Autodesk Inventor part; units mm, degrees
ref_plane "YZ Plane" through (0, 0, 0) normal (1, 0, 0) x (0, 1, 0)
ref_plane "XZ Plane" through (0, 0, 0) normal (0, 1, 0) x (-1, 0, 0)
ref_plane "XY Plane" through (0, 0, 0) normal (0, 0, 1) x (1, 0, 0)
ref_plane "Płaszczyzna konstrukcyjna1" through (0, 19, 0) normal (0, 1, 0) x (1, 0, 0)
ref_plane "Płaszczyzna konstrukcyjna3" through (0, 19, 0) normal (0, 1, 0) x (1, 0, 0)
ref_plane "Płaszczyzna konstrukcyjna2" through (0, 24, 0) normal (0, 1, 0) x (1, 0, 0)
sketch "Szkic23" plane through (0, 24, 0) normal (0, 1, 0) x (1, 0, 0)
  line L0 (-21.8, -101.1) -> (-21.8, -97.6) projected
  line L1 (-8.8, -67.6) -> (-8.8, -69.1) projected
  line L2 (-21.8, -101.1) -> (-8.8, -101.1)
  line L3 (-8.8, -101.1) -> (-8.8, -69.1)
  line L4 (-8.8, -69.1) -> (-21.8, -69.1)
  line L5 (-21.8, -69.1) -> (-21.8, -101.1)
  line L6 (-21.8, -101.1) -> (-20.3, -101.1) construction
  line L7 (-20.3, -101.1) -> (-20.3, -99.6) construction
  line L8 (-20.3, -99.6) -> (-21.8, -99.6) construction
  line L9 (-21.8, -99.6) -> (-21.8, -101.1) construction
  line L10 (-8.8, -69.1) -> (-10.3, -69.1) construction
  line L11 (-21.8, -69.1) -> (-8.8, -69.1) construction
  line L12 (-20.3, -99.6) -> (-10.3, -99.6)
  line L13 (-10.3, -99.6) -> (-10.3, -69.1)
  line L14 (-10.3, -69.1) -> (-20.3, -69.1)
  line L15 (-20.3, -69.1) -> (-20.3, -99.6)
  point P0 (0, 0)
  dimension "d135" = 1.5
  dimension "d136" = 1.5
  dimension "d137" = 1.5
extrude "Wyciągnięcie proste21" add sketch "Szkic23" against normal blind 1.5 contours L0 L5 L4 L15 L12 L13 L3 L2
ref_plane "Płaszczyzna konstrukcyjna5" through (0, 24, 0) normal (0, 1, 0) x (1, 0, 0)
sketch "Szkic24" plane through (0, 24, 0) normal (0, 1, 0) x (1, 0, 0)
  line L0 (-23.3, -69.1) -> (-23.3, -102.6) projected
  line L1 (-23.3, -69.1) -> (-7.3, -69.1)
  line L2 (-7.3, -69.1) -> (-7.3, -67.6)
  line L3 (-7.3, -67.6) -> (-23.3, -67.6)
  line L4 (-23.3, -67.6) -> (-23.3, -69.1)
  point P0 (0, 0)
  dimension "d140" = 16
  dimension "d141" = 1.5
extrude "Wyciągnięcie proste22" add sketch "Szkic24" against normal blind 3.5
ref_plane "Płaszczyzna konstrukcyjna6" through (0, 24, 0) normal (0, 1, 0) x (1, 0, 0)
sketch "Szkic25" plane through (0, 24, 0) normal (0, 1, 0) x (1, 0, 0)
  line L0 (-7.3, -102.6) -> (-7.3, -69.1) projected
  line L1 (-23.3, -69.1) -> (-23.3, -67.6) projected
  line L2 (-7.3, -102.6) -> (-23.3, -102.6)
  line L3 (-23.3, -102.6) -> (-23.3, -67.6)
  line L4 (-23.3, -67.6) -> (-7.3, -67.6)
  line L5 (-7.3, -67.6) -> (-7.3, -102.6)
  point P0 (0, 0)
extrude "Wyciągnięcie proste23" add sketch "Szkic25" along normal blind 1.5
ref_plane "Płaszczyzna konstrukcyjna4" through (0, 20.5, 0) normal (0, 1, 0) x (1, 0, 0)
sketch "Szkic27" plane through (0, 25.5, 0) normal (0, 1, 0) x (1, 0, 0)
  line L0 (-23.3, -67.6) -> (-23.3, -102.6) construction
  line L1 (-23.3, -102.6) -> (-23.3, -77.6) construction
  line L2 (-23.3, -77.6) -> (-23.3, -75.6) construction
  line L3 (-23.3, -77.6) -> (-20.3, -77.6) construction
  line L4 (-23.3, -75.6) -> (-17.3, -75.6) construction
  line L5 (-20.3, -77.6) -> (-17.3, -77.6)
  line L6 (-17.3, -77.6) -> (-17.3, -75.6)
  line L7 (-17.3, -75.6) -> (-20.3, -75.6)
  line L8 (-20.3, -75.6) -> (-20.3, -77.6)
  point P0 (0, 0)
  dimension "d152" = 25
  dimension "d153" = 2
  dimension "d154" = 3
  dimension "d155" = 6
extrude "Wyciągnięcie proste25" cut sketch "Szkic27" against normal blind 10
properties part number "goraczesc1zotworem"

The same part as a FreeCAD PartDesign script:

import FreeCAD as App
import Part
import Sketcher
from FreeCAD import Vector


def add_polygon(sketch, points):
    """Adds a closed chain of lines whose ends are joined by coincident constraints."""
    first, n = sketch.GeometryCount, len(points)
    for a, b in zip(points, points[1:] + points[:1]):
        sketch.addGeometry(Part.LineSegment(App.Vector(*a, 0), App.Vector(*b, 0)), False)
    for i in range(n):
        sketch.addConstraint(Sketcher.Constraint("Coincident", first + i, 2, first + (i + 1) % n, 1))

doc = App.newDocument("Part")
body = doc.addObject("PartDesign::Body", "Body")

# Sketch on XZ plane
sketch1 = body.newObject("Sketcher::SketchObject", "Sketch")
sketch1.AttachmentSupport = (doc.getObject("XZ_Plane"), [""])
sketch1.MapMode = "FlatFace"
sketch1.AttachmentOffset = App.Placement(Vector(0, 0, -24), App.Rotation())
add_polygon(sketch1, [(-21.8, 69.1), (-21.8, 101.1), (-8.8, 101.1), (-8.8, 69.1), (-10.3, 69.1), (-10.3, 99.6), (-20.3, 99.6), (-20.3, 69.1)])  # lines 0-7
sketch1.addConstraint([
    Sketcher.Constraint("Vertical", 0),
    Sketcher.Constraint("Horizontal", 1),
    Sketcher.Constraint("Vertical", 2),
    Sketcher.Constraint("Horizontal", 3),
    Sketcher.Constraint("Vertical", 4),
    Sketcher.Constraint("Horizontal", 5),
    Sketcher.Constraint("Vertical", 6),
    Sketcher.Constraint("Horizontal", 7),
    Sketcher.Constraint("Horizontal", 3, 2, 6, 2),
    Sketcher.Constraint("Equal", 3, 7),
    Sketcher.Constraint("DistanceX", 3, 2, 3, 1, 1.5),
    Sketcher.Constraint("DistanceY", 4, 2, 1, 2, 1.5),
    Sketcher.Constraint("DistanceX", 1, 1, 1, 2, 13.0),
    Sketcher.Constraint("DistanceY", 0, 1, 0, 2, 32.0),
    Sketcher.Constraint("DistanceX", 0, 2, -1, 1, 21.8),
    Sketcher.Constraint("DistanceY", -1, 1, 0, 2, 101.1),
])
pad1 = body.newObject("PartDesign::Pad", "Pad")
pad1.Profile = sketch1
pad1.Length = 1.5

# Sketch on XZ plane
sketch2 = body.newObject("Sketcher::SketchObject", "Sketch001")
sketch2.AttachmentSupport = (doc.getObject("XZ_Plane"), [""])
sketch2.MapMode = "FlatFace"
sketch2.AttachmentOffset = App.Placement(Vector(0, 0, -24), App.Rotation())
add_polygon(sketch2, [(-23.3, 67.6), (-23.3, 69.1), (-7.3, 69.1), (-7.3, 67.6)])  # lines 0-3
sketch2.addConstraint([
    Sketcher.Constraint("Vertical", 0),
    Sketcher.Constraint("Horizontal", 1),
    Sketcher.Constraint("Vertical", 2),
    Sketcher.Constraint("Horizontal", 3),
    Sketcher.Constraint("DistanceX", 1, 1, 1, 2, 16.0),
    Sketcher.Constraint("DistanceY", 0, 1, 0, 2, 1.5),
    Sketcher.Constraint("DistanceX", 0, 2, -1, 1, 23.3),
    Sketcher.Constraint("DistanceY", -1, 1, 0, 2, 69.1),
])
pad2 = body.newObject("PartDesign::Pad", "Pad001")
pad2.Profile = sketch2
pad2.Length = 3.5

# Sketch on XZ plane
sketch3 = body.newObject("Sketcher::SketchObject", "Sketch002")
sketch3.AttachmentSupport = (doc.getObject("XZ_Plane"), [""])
sketch3.MapMode = "FlatFace"
sketch3.AttachmentOffset = App.Placement(Vector(0, 0, -24), App.Rotation())
add_polygon(sketch3, [(-23, 103), (-7, 103), (-7, 68), (-23, 68)])  # lines 0-3
sketch3.addConstraint([
    Sketcher.Constraint("Horizontal", 0),
    Sketcher.Constraint("Vertical", 1),
    Sketcher.Constraint("Horizontal", 2),
    Sketcher.Constraint("Vertical", 3),
    Sketcher.Constraint("DistanceX", 0, 1, 0, 2, 16.0),
    Sketcher.Constraint("DistanceY", 1, 2, 1, 1, 35.0),
    Sketcher.Constraint("DistanceX", 0, 2, -1, 1, 7.3),
    Sketcher.Constraint("DistanceY", -1, 1, 0, 2, 102.6),
])
pad3 = body.newObject("PartDesign::Pad", "Pad002")
pad3.Profile = sketch3
pad3.Length = 1.5
pad3.Reversed = True

# Sketch on XZ plane
sketch4 = body.newObject("Sketcher::SketchObject", "Sketch003")
sketch4.AttachmentSupport = (doc.getObject("XZ_Plane"), [""])
sketch4.MapMode = "FlatFace"
sketch4.AttachmentOffset = App.Placement(Vector(0, 0, -25.5), App.Rotation())
add_polygon(sketch4, [(-20.3, 75.6), (-20.3, 77.6), (-17.3, 77.6), (-17.3, 75.6)])  # lines 0-3
sketch4.addConstraint([
    Sketcher.Constraint("Vertical", 0),
    Sketcher.Constraint("Horizontal", 1),
    Sketcher.Constraint("Vertical", 2),
    Sketcher.Constraint("Horizontal", 3),
    Sketcher.Constraint("DistanceX", 1, 1, 1, 2, 3.0),
    Sketcher.Constraint("DistanceY", 0, 1, 0, 2, 2.0),
    Sketcher.Constraint("DistanceX", 0, 2, -1, 1, 20.3),
    Sketcher.Constraint("DistanceY", -1, 1, 0, 2, 77.6),
])
pocket1 = body.newObject("PartDesign::Pocket", "Pocket")
pocket1.Profile = sketch4
pocket1.Length = 10
pocket1.Reversed = True

doc.recompute()
